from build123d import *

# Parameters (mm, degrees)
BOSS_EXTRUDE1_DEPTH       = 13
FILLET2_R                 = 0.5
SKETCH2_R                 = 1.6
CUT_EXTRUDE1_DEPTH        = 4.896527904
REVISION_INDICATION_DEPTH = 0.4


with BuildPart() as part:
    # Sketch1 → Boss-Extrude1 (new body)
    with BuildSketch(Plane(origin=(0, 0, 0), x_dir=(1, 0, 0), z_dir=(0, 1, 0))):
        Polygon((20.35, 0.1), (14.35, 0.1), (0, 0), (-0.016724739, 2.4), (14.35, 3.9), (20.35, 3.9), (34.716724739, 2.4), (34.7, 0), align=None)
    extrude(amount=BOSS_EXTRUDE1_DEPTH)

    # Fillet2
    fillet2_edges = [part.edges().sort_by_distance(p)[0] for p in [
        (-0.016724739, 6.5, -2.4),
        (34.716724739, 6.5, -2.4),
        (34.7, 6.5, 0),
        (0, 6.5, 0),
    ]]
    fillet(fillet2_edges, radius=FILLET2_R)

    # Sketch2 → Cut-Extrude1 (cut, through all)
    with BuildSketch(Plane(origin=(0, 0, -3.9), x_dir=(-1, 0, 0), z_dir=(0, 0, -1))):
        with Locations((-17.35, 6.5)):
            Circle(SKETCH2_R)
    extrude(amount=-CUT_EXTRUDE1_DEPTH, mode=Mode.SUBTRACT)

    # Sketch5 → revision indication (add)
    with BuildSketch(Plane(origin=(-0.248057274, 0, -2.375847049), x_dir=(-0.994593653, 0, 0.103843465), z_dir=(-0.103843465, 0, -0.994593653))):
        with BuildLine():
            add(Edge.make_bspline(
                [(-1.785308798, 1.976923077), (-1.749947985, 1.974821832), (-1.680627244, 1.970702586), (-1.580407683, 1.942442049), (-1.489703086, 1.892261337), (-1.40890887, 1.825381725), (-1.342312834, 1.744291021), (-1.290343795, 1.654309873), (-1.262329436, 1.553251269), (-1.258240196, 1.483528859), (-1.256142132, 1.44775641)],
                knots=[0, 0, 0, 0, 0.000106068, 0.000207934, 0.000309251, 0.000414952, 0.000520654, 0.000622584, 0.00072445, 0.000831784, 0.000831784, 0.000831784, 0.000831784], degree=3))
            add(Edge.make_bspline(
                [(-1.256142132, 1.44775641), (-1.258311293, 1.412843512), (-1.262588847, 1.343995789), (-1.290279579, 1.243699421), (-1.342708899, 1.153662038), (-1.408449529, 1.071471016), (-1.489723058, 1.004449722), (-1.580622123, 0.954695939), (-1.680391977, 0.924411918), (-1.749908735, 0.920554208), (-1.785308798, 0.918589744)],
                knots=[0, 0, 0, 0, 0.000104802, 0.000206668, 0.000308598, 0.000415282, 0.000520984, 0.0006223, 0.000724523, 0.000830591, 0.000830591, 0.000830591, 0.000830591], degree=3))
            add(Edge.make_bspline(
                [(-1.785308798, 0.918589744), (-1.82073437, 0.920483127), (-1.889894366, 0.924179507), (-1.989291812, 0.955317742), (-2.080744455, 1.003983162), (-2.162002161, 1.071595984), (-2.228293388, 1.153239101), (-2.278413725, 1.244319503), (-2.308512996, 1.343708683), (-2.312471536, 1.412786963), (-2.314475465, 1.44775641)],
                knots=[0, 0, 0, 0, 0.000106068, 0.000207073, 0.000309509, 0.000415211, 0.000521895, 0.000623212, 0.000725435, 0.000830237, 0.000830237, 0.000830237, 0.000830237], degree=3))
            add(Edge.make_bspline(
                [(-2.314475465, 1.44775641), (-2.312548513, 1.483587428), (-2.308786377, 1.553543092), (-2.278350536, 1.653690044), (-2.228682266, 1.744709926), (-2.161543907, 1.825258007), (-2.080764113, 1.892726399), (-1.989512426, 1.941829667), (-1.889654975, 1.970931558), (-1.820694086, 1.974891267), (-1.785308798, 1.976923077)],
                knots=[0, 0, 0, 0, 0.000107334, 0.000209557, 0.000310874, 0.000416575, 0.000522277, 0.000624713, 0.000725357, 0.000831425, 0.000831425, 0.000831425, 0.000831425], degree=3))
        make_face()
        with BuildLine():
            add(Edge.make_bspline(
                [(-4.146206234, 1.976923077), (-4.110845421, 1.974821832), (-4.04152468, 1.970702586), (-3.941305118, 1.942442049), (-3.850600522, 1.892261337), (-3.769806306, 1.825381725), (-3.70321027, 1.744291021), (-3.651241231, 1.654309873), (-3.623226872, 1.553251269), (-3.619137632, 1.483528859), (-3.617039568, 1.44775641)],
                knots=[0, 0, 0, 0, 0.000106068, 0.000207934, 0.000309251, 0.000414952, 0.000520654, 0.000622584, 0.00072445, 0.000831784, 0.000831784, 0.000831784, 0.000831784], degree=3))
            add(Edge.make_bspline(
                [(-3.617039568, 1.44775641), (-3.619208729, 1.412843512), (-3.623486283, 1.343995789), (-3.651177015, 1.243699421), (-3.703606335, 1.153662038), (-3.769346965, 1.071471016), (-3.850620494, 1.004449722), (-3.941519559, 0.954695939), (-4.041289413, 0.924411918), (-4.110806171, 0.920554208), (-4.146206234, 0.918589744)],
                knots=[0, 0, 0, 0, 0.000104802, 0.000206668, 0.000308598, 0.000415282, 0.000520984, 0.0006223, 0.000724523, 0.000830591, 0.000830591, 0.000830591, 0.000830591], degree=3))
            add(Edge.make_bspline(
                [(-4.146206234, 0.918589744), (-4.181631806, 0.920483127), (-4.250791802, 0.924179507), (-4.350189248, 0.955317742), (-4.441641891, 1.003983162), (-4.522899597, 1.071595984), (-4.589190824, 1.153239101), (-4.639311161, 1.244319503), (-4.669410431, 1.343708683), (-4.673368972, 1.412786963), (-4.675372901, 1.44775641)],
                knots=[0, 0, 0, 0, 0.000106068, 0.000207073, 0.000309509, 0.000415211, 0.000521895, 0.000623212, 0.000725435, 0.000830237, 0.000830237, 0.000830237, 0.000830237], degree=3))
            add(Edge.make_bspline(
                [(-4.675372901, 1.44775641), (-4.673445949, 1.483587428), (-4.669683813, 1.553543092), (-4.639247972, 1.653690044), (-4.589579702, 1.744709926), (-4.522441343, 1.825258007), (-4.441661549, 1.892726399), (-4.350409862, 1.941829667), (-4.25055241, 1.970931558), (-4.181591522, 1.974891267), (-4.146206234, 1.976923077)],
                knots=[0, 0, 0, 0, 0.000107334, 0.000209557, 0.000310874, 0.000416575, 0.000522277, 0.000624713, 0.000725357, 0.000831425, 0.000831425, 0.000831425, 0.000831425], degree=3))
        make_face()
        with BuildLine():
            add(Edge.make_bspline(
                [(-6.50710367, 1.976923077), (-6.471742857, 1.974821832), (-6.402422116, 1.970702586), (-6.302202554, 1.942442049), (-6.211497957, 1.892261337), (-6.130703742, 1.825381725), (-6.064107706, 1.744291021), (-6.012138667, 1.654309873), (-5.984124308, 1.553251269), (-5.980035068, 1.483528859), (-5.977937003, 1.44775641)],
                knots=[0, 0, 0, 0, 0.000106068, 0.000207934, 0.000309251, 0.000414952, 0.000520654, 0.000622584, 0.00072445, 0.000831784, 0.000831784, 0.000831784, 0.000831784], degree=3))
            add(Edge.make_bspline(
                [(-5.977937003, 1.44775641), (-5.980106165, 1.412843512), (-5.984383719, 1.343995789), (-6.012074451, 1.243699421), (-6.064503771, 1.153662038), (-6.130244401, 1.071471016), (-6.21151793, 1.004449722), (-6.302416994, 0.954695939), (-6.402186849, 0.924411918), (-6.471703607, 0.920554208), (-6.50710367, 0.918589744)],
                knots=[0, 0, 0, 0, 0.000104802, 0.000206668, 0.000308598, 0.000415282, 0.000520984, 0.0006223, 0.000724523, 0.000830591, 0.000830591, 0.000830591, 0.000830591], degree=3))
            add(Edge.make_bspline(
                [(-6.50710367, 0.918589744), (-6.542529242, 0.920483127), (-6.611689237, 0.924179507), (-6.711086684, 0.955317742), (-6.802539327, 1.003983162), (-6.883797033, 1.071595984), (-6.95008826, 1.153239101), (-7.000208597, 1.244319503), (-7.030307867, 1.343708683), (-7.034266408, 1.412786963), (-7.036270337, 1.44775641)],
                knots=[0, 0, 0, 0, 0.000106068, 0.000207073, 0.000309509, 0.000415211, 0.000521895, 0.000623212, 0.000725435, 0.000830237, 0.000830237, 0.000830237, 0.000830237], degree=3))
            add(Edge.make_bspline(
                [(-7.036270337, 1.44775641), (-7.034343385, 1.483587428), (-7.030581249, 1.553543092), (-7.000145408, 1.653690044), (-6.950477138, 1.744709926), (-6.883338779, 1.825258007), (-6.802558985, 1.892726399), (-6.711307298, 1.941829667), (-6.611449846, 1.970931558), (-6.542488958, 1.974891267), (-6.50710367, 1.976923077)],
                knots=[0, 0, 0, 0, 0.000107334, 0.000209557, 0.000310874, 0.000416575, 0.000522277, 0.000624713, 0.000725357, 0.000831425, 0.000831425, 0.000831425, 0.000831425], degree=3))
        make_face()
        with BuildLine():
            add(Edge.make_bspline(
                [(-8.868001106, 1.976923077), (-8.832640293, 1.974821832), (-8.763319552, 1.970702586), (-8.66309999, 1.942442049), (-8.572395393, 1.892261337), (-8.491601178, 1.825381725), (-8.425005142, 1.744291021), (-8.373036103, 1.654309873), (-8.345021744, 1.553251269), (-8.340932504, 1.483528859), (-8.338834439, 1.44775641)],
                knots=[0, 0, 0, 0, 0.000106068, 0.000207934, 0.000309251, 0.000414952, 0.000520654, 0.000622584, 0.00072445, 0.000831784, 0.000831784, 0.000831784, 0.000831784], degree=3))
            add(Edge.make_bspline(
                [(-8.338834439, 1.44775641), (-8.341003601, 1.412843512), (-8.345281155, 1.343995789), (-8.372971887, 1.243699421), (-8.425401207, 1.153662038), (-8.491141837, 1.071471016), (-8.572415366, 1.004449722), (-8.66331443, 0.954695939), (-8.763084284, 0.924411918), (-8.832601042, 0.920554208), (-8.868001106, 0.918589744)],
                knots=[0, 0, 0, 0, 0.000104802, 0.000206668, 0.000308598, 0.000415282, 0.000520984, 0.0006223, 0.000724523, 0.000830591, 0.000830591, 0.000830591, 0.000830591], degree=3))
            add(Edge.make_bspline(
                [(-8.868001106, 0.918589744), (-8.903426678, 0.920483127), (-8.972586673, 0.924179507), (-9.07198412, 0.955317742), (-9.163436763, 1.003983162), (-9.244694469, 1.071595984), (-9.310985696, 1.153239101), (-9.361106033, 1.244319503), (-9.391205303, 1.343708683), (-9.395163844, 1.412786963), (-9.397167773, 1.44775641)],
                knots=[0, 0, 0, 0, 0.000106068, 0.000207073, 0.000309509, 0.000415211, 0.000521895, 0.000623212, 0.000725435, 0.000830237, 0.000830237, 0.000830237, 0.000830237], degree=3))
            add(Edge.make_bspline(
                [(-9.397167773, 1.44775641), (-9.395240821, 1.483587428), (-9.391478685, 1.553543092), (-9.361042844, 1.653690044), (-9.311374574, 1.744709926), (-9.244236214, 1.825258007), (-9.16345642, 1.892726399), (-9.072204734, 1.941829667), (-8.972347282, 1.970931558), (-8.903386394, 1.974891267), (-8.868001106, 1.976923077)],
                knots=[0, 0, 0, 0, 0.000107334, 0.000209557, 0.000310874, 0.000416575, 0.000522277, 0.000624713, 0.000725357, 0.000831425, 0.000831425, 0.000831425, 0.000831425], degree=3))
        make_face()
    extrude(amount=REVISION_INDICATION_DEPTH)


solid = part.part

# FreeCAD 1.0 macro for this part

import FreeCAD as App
import Part
import Sketcher
Q = App.Units.Quantity


def edges_at(feature, points):
    """Names of the edges that pass closest to the given points."""
    edges = feature.Shape.Edges
    near = lambda p: min(range(len(edges)), key=lambda i: edges[i].distToShape(Part.Vertex(*p))[0])
    return sorted({f"Edge{near(p) + 1}" for p in points})


def add_polygon(sketch, points):
    """Adds a closed chain of lines whose ends are joined by coincident constraints."""
    first, n = sketch.GeometryCount, len(points)
    for a, b in zip(points, points[1:] + points[:1]):
        sketch.addGeometry(Part.LineSegment(App.Vector(*a, 0), App.Vector(*b, 0)), False)
    for i in range(n):
        sketch.addConstraint(Sketcher.Constraint("Coincident", first + i, 2, first + (i + 1) % n, 1))

doc = App.newDocument("Part")
params = doc.addObject("Spreadsheet::Sheet", "Params")
for row, (alias, value) in enumerate([
    ("sketch1_width", "6 mm"),
    ("pad1_length", "13 mm"),
    ("fillet_radius", "0.5 mm"),
    ("sketch2_diameter", "3.2 mm"),
    ("pad2_length", "0.4 mm"),
], start=1):
    params.set(f"A{row}", alias)
    params.set(f"B{row}", "=" + value)
    params.setAlias(f"B{row}", alias)

body = doc.addObject("PartDesign::Body", "Body")

# Sketch on XZ plane
sketch1 = body.newObject("Sketcher::SketchObject", "Sketch")
sketch1.AttachmentSupport = (doc.getObject("XZ_Plane"), [""])
sketch1.MapMode = "FlatFace"
add_polygon(sketch1, [(14.3, -0.1), (20.4, -0.1), (34.7, 0), (34.7, -2.4), (20.4, -3.9), (14.3, -3.9), (0, -2.4), (0, 0)])  # lines 0-7
sketch1.addConstraint(Sketcher.Constraint("Horizontal", 0))
sketch1.addConstraint(Sketcher.Constraint("Horizontal", 4))
sketch1.addConstraint(Sketcher.Constraint("Coincident", 6, 2, -1, 1))
sketch1.addConstraint(Sketcher.Constraint("PointOnObject", 1, 2, -1))
sketch1.addConstraint(Sketcher.Constraint("Perpendicular", 1, 2))
sketch1.addConstraint(Sketcher.Constraint("Perpendicular", 6, 7))
sketch1.addConstraint(Sketcher.Constraint("Horizontal", 2, 2, 5, 2))
sketch1.addConstraint(Sketcher.Constraint("Vertical", 0, 2, 3, 2))
sketch1.addConstraint(Sketcher.Constraint("Vertical", 4, 2, 7, 2))
sketch1.addConstraint(Sketcher.Constraint("Equal", 3, 5))
sketch1.addConstraint(Sketcher.Constraint("DistanceX", 0, 1, 0, 2, Q("6 mm")))
sketch1.addConstraint(Sketcher.Constraint("DistanceY", 0, 2, -1, 1, Q("0.1 mm")))
sketch1.addConstraint(Sketcher.Constraint("DistanceX", -1, 1, 1, 2, Q("34.7 mm")))
sketch1.addConstraint(Sketcher.Constraint("DistanceY", 2, 2, -1, 1, Q("2.4 mm")))
sketch1.addConstraint(Sketcher.Constraint("DistanceY", 3, 2, -1, 1, Q("3.9 mm")))
sketch1.setExpression("Constraints[18]", "Params.sketch1_width")
pad1 = body.newObject("PartDesign::Pad", "Pad")
pad1.Profile = sketch1
pad1.setExpression("Length", "Params.pad1_length")
pad1.Reversed = True
doc.recompute()

fillet = body.newObject("PartDesign::Fillet", "Fillet")
fillet.Base = (pad1, edges_at(pad1, [
    (-0.017, 6.5, -2.4),
    (34.717, 6.5, -2.4),
    (34.7, 6.5, 0),
    (0, 6.5, 0),
]))
fillet.setExpression("Radius", "Params.fillet_radius")

# Sketch on XY plane
sketch2 = body.newObject("Sketcher::SketchObject", "Sketch001")
sketch2.AttachmentSupport = (doc.getObject("XY_Plane"), [""])
sketch2.MapMode = "FlatFace"
sketch2.AttachmentOffset = App.Placement(App.Vector(0, 0, -3.9), App.Rotation())
sketch2.addGeometry(Part.Circle(App.Vector(17.4, 6.5, 0), App.Vector(0, 0, 1), 1.6), False)
sketch2.addConstraint(Sketcher.Constraint("Diameter", 0, Q("3.2 mm")))
sketch2.addConstraint(Sketcher.Constraint("DistanceY", -1, 1, 0, 3, Q("6.5 mm")))
sketch2.addConstraint(Sketcher.Constraint("DistanceX", -1, 1, 0, 3, Q("17.35 mm")))
sketch2.setExpression("Constraints[0]", "Params.sketch2_diameter")
pocket1 = body.newObject("PartDesign::Pocket", "Pocket")
pocket1.Profile = sketch2
pocket1.Type = "ThroughAll"
pocket1.Reversed = True

# Sketch on an angled plane
sketch3 = body.newObject("Sketcher::SketchObject", "Sketch002")
sketch3.Placement = App.Placement(App.Vector(-0.248057, 0, -2.375847), App.Rotation(App.Vector(-0.994593653, 0, 0.103843465), App.Vector(0, 1, 0), App.Vector(-0.103843465, 0, -0.994593653), "ZXY"))
sketch3.addGeometry(Part.BSplineCurve([App.Vector(-1.785309, 1.976923, 0), App.Vector(-1.749948, 1.974822, 0), App.Vector(-1.680627, 1.970703, 0), App.Vector(-1.580408, 1.942442, 0), App.Vector(-1.489703, 1.892261, 0), App.Vector(-1.408909, 1.825382, 0), App.Vector(-1.342313, 1.744291, 0), App.Vector(-1.290344, 1.65431, 0), App.Vector(-1.262329, 1.553251, 0), App.Vector(-1.25824, 1.483529, 0), App.Vector(-1.256142, 1.447756, 0)], [4, 1, 1, 1, 1, 1, 1, 1, 4], [0, 0.000106068, 0.000207934, 0.000309251, 0.000414952, 0.000520654, 0.000622584, 0.00072445, 0.000831784], False, 3, [1, 1, 1, 1, 1, 1, 1, 1, 1, 1, 1], False), False)
sketch3.addGeometry(Part.BSplineCurve([App.Vector(-2.314475, 1.447756, 0), App.Vector(-2.312549, 1.483587, 0), App.Vector(-2.308786, 1.553543, 0), App.Vector(-2.278351, 1.65369, 0), App.Vector(-2.228682, 1.74471, 0), App.Vector(-2.161544, 1.825258, 0), App.Vector(-2.080764, 1.892726, 0), App.Vector(-1.989512, 1.94183, 0), App.Vector(-1.889655, 1.970932, 0), App.Vector(-1.820694, 1.974891, 0), App.Vector(-1.785309, 1.976923, 0)], [4, 1, 1, 1, 1, 1, 1, 1, 4], [0, 0.000107334, 0.000209557, 0.000310874, 0.000416575, 0.000522277, 0.000624713, 0.000725357, 0.000831425], False, 3, [1, 1, 1, 1, 1, 1, 1, 1, 1, 1, 1], False), False)
sketch3.addGeometry(Part.BSplineCurve([App.Vector(-1.785309, 0.91859, 0), App.Vector(-1.820734, 0.920483, 0), App.Vector(-1.889894, 0.92418, 0), App.Vector(-1.989292, 0.955318, 0), App.Vector(-2.080744, 1.003983, 0), App.Vector(-2.162002, 1.071596, 0), App.Vector(-2.228293, 1.153239, 0), App.Vector(-2.278414, 1.24432, 0), App.Vector(-2.308513, 1.343709, 0), App.Vector(-2.312472, 1.412787, 0), App.Vector(-2.314475, 1.447756, 0)], [4, 1, 1, 1, 1, 1, 1, 1, 4], [0, 0.000106068, 0.000207073, 0.000309509, 0.000415211, 0.000521895, 0.000623212, 0.000725435, 0.000830237], False, 3, [1, 1, 1, 1, 1, 1, 1, 1, 1, 1, 1], False), False)
sketch3.addGeometry(Part.BSplineCurve([App.Vector(-1.256142, 1.447756, 0), App.Vector(-1.258311, 1.412844, 0), App.Vector(-1.262589, 1.343996, 0), App.Vector(-1.29028, 1.243699, 0), App.Vector(-1.342709, 1.153662, 0), App.Vector(-1.40845, 1.071471, 0), App.Vector(-1.489723, 1.00445, 0), App.Vector(-1.580622, 0.954696, 0), App.Vector(-1.680392, 0.924412, 0), App.Vector(-1.749909, 0.920554, 0), App.Vector(-1.785309, 0.91859, 0)], [4, 1, 1, 1, 1, 1, 1, 1, 4], [0, 0.000104802, 0.000206668, 0.000308598, 0.000415282, 0.000520984, 0.0006223, 0.000724523, 0.000830591], False, 3, [1, 1, 1, 1, 1, 1, 1, 1, 1, 1, 1], False), False)
sketch3.addGeometry(Part.BSplineCurve([App.Vector(-4.146206, 1.976923, 0), App.Vector(-4.110845, 1.974822, 0), App.Vector(-4.041525, 1.970703, 0), App.Vector(-3.941305, 1.942442, 0), App.Vector(-3.850601, 1.892261, 0), App.Vector(-3.769806, 1.825382, 0), App.Vector(-3.70321, 1.744291, 0), App.Vector(-3.651241, 1.65431, 0), App.Vector(-3.623227, 1.553251, 0), App.Vector(-3.619138, 1.483529, 0), App.Vector(-3.61704, 1.447756, 0)], [4, 1, 1, 1, 1, 1, 1, 1, 4], [0, 0.000106068, 0.000207934, 0.000309251, 0.000414952, 0.000520654, 0.000622584, 0.00072445, 0.000831784], False, 3, [1, 1, 1, 1, 1, 1, 1, 1, 1, 1, 1], False), False)
sketch3.addGeometry(Part.BSplineCurve([App.Vector(-4.675373, 1.447756, 0), App.Vector(-4.673446, 1.483587, 0), App.Vector(-4.669684, 1.553543, 0), App.Vector(-4.639248, 1.65369, 0), App.Vector(-4.58958, 1.74471, 0), App.Vector(-4.522441, 1.825258, 0), App.Vector(-4.441662, 1.892726, 0), App.Vector(-4.35041, 1.94183, 0), App.Vector(-4.250552, 1.970932, 0), App.Vector(-4.181592, 1.974891, 0), App.Vector(-4.146206, 1.976923, 0)], [4, 1, 1, 1, 1, 1, 1, 1, 4], [0, 0.000107334, 0.000209557, 0.000310874, 0.000416575, 0.000522277, 0.000624713, 0.000725357, 0.000831425], False, 3, [1, 1, 1, 1, 1, 1, 1, 1, 1, 1, 1], False), False)
sketch3.addGeometry(Part.BSplineCurve([App.Vector(-4.146206, 0.91859, 0), App.Vector(-4.181632, 0.920483, 0), App.Vector(-4.250792, 0.92418, 0), App.Vector(-4.350189, 0.955318, 0), App.Vector(-4.441642, 1.003983, 0), App.Vector(-4.5229, 1.071596, 0), App.Vector(-4.589191, 1.153239, 0), App.Vector(-4.639311, 1.24432, 0), App.Vector(-4.66941, 1.343709, 0), App.Vector(-4.673369, 1.412787, 0), App.Vector(-4.675373, 1.447756, 0)], [4, 1, 1, 1, 1, 1, 1, 1, 4], [0, 0.000106068, 0.000207073, 0.000309509, 0.000415211, 0.000521895, 0.000623212, 0.000725435, 0.000830237], False, 3, [1, 1, 1, 1, 1, 1, 1, 1, 1, 1, 1], False), False)
sketch3.addGeometry(Part.BSplineCurve([App.Vector(-3.61704, 1.447756, 0), App.Vector(-3.619209, 1.412844, 0), App.Vector(-3.623486, 1.343996, 0), App.Vector(-3.651177, 1.243699, 0), App.Vector(-3.703606, 1.153662, 0), App.Vector(-3.769347, 1.071471, 0), App.Vector(-3.85062, 1.00445, 0), App.Vector(-3.94152, 0.954696, 0), App.Vector(-4.041289, 0.924412, 0), App.Vector(-4.110806, 0.920554, 0), App.Vector(-4.146206, 0.91859, 0)], [4, 1, 1, 1, 1, 1, 1, 1, 4], [0, 0.000104802, 0.000206668, 0.000308598, 0.000415282, 0.000520984, 0.0006223, 0.000724523, 0.000830591], False, 3, [1, 1, 1, 1, 1, 1, 1, 1, 1, 1, 1], False), False)
sketch3.addGeometry(Part.BSplineCurve([App.Vector(-6.507104, 1.976923, 0), App.Vector(-6.471743, 1.974822, 0), App.Vector(-6.402422, 1.970703, 0), App.Vector(-6.302203, 1.942442, 0), App.Vector(-6.211498, 1.892261, 0), App.Vector(-6.130704, 1.825382, 0), App.Vector(-6.064108, 1.744291, 0), App.Vector(-6.012139, 1.65431, 0), App.Vector(-5.984124, 1.553251, 0), App.Vector(-5.980035, 1.483529, 0), App.Vector(-5.977937, 1.447756, 0)], [4, 1, 1, 1, 1, 1, 1, 1, 4], [0, 0.000106068, 0.000207934, 0.000309251, 0.000414952, 0.000520654, 0.000622584, 0.00072445, 0.000831784], False, 3, [1, 1, 1, 1, 1, 1, 1, 1, 1, 1, 1], False), False)
sketch3.addGeometry(Part.BSplineCurve([App.Vector(-7.03627, 1.447756, 0), App.Vector(-7.034343, 1.483587, 0), App.Vector(-7.030581, 1.553543, 0), App.Vector(-7.000145, 1.65369, 0), App.Vector(-6.950477, 1.74471, 0), App.Vector(-6.883339, 1.825258, 0), App.Vector(-6.802559, 1.892726, 0), App.Vector(-6.711307, 1.94183, 0), App.Vector(-6.61145, 1.970932, 0), App.Vector(-6.542489, 1.974891, 0), App.Vector(-6.507104, 1.976923, 0)], [4, 1, 1, 1, 1, 1, 1, 1, 4], [0, 0.000107334, 0.000209557, 0.000310874, 0.000416575, 0.000522277, 0.000624713, 0.000725357, 0.000831425], False, 3, [1, 1, 1, 1, 1, 1, 1, 1, 1, 1, 1], False), False)
sketch3.addGeometry(Part.BSplineCurve([App.Vector(-6.507104, 0.91859, 0), App.Vector(-6.542529, 0.920483, 0), App.Vector(-6.611689, 0.92418, 0), App.Vector(-6.711087, 0.955318, 0), App.Vector(-6.802539, 1.003983, 0), App.Vector(-6.883797, 1.071596, 0), App.Vector(-6.950088, 1.153239, 0), App.Vector(-7.000209, 1.24432, 0), App.Vector(-7.030308, 1.343709, 0), App.Vector(-7.034266, 1.412787, 0), App.Vector(-7.03627, 1.447756, 0)], [4, 1, 1, 1, 1, 1, 1, 1, 4], [0, 0.000106068, 0.000207073, 0.000309509, 0.000415211, 0.000521895, 0.000623212, 0.000725435, 0.000830237], False, 3, [1, 1, 1, 1, 1, 1, 1, 1, 1, 1, 1], False), False)
sketch3.addGeometry(Part.BSplineCurve([App.Vector(-5.977937, 1.447756, 0), App.Vector(-5.980106, 1.412844, 0), App.Vector(-5.984384, 1.343996, 0), App.Vector(-6.012074, 1.243699, 0), App.Vector(-6.064504, 1.153662, 0), App.Vector(-6.130244, 1.071471, 0), App.Vector(-6.211518, 1.00445, 0), App.Vector(-6.302417, 0.954696, 0), App.Vector(-6.402187, 0.924412, 0), App.Vector(-6.471704, 0.920554, 0), App.Vector(-6.507104, 0.91859, 0)], [4, 1, 1, 1, 1, 1, 1, 1, 4], [0, 0.000104802, 0.000206668, 0.000308598, 0.000415282, 0.000520984, 0.0006223, 0.000724523, 0.000830591], False, 3, [1, 1, 1, 1, 1, 1, 1, 1, 1, 1, 1], False), False)
sketch3.addGeometry(Part.BSplineCurve([App.Vector(-8.868001, 1.976923, 0), App.Vector(-8.83264, 1.974822, 0), App.Vector(-8.76332, 1.970703, 0), App.Vector(-8.6631, 1.942442, 0), App.Vector(-8.572395, 1.892261, 0), App.Vector(-8.491601, 1.825382, 0), App.Vector(-8.425005, 1.744291, 0), App.Vector(-8.373036, 1.65431, 0), App.Vector(-8.345022, 1.553251, 0), App.Vector(-8.340933, 1.483529, 0), App.Vector(-8.338834, 1.447756, 0)], [4, 1, 1, 1, 1, 1, 1, 1, 4], [0, 0.000106068, 0.000207934, 0.000309251, 0.000414952, 0.000520654, 0.000622584, 0.00072445, 0.000831784], False, 3, [1, 1, 1, 1, 1, 1, 1, 1, 1, 1, 1], False), False)
sketch3.addGeometry(Part.BSplineCurve([App.Vector(-9.397168, 1.447756, 0), App.Vector(-9.395241, 1.483587, 0), App.Vector(-9.391479, 1.553543, 0), App.Vector(-9.361043, 1.65369, 0), App.Vector(-9.311375, 1.74471, 0), App.Vector(-9.244236, 1.825258, 0), App.Vector(-9.163456, 1.892726, 0), App.Vector(-9.072205, 1.94183, 0), App.Vector(-8.972347, 1.970932, 0), App.Vector(-8.903386, 1.974891, 0), App.Vector(-8.868001, 1.976923, 0)], [4, 1, 1, 1, 1, 1, 1, 1, 4], [0, 0.000107334, 0.000209557, 0.000310874, 0.000416575, 0.000522277, 0.000624713, 0.000725357, 0.000831425], False, 3, [1, 1, 1, 1, 1, 1, 1, 1, 1, 1, 1], False), False)
sketch3.addGeometry(Part.BSplineCurve([App.Vector(-8.868001, 0.91859, 0), App.Vector(-8.903427, 0.920483, 0), App.Vector(-8.972587, 0.92418, 0), App.Vector(-9.071984, 0.955318, 0), App.Vector(-9.163437, 1.003983, 0), App.Vector(-9.244694, 1.071596, 0), App.Vector(-9.310986, 1.153239, 0), App.Vector(-9.361106, 1.24432, 0), App.Vector(-9.391205, 1.343709, 0), App.Vector(-9.395164, 1.412787, 0), App.Vector(-9.397168, 1.447756, 0)], [4, 1, 1, 1, 1, 1, 1, 1, 4], [0, 0.000106068, 0.000207073, 0.000309509, 0.000415211, 0.000521895, 0.000623212, 0.000725435, 0.000830237], False, 3, [1, 1, 1, 1, 1, 1, 1, 1, 1, 1, 1], False), False)
sketch3.addGeometry(Part.BSplineCurve([App.Vector(-8.338834, 1.447756, 0), App.Vector(-8.341004, 1.412844, 0), App.Vector(-8.345281, 1.343996, 0), App.Vector(-8.372972, 1.243699, 0), App.Vector(-8.425401, 1.153662, 0), App.Vector(-8.491142, 1.071471, 0), App.Vector(-8.572415, 1.00445, 0), App.Vector(-8.663314, 0.954696, 0), App.Vector(-8.763084, 0.924412, 0), App.Vector(-8.832601, 0.920554, 0), App.Vector(-8.868001, 0.91859, 0)], [4, 1, 1, 1, 1, 1, 1, 1, 4], [0, 0.000104802, 0.000206668, 0.000308598, 0.000415282, 0.000520984, 0.0006223, 0.000724523, 0.000830591], False, 3, [1, 1, 1, 1, 1, 1, 1, 1, 1, 1, 1], False), False)
sketch3.addConstraint(Sketcher.Constraint("Block", 0))
sketch3.addConstraint(Sketcher.Constraint("Block", 1))
sketch3.addConstraint(Sketcher.Constraint("Block", 2))
sketch3.addConstraint(Sketcher.Constraint("Block", 3))
sketch3.addConstraint(Sketcher.Constraint("Block", 4))
sketch3.addConstraint(Sketcher.Constraint("Block", 5))
sketch3.addConstraint(Sketcher.Constraint("Block", 6))
sketch3.addConstraint(Sketcher.Constraint("Block", 7))
sketch3.addConstraint(Sketcher.Constraint("Block", 8))
sketch3.addConstraint(Sketcher.Constraint("Block", 9))
sketch3.addConstraint(Sketcher.Constraint("Block", 10))
sketch3.addConstraint(Sketcher.Constraint("Block", 11))
sketch3.addConstraint(Sketcher.Constraint("Block", 12))
sketch3.addConstraint(Sketcher.Constraint("Block", 13))
sketch3.addConstraint(Sketcher.Constraint("Block", 14))
sketch3.addConstraint(Sketcher.Constraint("Block", 15))
pad2 = body.newObject("PartDesign::Pad", "Pad001")
pad2.Profile = sketch3
pad2.setExpression("Length", "Params.pad2_length")

doc.recompute()
